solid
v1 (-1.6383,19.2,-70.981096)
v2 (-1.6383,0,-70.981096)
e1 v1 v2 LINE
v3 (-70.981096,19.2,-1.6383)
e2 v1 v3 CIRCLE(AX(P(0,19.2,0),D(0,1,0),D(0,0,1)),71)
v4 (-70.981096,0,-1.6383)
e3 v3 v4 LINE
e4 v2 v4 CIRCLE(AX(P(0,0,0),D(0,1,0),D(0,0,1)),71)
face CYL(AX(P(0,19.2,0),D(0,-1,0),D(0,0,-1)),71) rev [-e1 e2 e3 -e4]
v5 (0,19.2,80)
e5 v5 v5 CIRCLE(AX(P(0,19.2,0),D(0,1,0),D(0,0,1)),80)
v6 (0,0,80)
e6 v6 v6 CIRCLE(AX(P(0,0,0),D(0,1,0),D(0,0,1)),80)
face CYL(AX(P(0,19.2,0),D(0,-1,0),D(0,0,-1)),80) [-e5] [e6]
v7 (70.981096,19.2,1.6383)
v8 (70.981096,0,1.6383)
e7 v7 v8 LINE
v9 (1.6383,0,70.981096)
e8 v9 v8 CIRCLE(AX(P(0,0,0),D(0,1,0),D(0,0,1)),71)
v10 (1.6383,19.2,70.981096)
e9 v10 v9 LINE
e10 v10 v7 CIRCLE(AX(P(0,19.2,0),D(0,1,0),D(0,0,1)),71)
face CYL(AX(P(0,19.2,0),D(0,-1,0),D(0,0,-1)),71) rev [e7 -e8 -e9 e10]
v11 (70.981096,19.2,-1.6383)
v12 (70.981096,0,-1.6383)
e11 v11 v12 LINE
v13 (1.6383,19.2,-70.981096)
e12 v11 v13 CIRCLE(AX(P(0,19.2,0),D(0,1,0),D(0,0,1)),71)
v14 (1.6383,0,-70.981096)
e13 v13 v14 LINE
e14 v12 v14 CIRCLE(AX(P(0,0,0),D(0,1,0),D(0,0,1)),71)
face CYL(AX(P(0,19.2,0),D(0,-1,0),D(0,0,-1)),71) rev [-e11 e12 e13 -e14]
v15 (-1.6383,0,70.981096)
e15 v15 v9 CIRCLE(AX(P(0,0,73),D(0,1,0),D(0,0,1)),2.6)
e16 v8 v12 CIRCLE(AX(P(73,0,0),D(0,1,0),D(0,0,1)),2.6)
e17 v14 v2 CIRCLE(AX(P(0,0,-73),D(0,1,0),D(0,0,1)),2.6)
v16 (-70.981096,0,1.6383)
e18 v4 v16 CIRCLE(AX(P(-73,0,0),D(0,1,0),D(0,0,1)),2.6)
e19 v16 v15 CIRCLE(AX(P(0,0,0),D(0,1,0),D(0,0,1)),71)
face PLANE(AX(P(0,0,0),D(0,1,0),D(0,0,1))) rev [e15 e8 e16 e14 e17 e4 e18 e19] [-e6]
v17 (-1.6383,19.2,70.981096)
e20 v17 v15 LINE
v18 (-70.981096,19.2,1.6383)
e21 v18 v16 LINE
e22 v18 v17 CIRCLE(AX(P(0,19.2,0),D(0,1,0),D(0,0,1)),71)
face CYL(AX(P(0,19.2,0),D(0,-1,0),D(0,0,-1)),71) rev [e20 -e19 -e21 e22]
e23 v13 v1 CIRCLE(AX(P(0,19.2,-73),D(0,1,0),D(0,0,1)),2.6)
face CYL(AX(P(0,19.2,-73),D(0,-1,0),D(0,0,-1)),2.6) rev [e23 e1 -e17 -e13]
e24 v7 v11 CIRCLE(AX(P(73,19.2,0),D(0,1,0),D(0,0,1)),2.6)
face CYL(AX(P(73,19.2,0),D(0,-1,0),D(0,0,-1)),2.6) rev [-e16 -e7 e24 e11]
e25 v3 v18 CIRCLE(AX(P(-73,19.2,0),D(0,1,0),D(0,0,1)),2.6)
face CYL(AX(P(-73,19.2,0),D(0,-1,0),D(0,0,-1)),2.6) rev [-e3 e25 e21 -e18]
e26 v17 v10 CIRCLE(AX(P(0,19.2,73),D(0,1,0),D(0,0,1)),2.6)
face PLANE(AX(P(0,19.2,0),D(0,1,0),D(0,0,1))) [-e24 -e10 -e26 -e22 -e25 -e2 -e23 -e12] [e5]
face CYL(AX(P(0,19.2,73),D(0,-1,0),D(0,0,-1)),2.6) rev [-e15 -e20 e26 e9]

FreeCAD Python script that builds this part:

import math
import FreeCAD as App
import Part
import Sketcher

V = App.Vector
Q = App.Units.Quantity

doc = App.newDocument("Part")
params = doc.addObject("Spreadsheet::Sheet", "Params")
for row, (alias, value) in enumerate([
    ("sketch1_diameter", "160 mm"),
    ("sketch1_radius", "71 mm"),
    ("sketch1_radius2", "2.6 mm"),
    ("pad1_length", "19.2 mm"),
], start=1):
    params.set(f"A{row}", alias)
    params.set(f"B{row}", "=" + value)
    params.setAlias(f"B{row}", alias)

body = doc.addObject("PartDesign::Body", "Body")

# Sketch on XZ plane
sketch1 = doc.addObject("Sketcher::SketchObject", "Sketch")
body.addObject(sketch1)
sketch1.AttachmentSupport = (doc.XZ_Plane, [""])
sketch1.MapMode = "FlatFace"
sketch1.addGeometry([
    Part.Circle(V(0, 0, 0), V(0, 0, 1), 80),  # 0
    Part.ArcOfCircle(Part.Circle(V(0, -73, 0), V(0, 0, 1), 2.6), math.radians(129), math.radians(411)),  # 1
    Part.ArcOfCircle(Part.Circle(V(0, 0, 0), V(0, 0, 1), 71), math.radians(-89), math.radians(-1)),  # 2
    Part.ArcOfCircle(Part.Circle(V(73, 0, 0), V(0, 0, 1), 2.6), math.radians(-141), math.radians(141)),  # 3
    Part.ArcOfCircle(Part.Circle(V(0, 0, 0), V(0, 0, 1), 71), math.radians(1), math.radians(89)),  # 4
    Part.ArcOfCircle(Part.Circle(V(0, 73, 0), V(0, 0, 1), 2.6), math.radians(-51), math.radians(231)),  # 5
    Part.ArcOfCircle(Part.Circle(V(0, 0, 0), V(0, 0, 1), 71), math.radians(91), math.radians(179)),  # 6
    Part.ArcOfCircle(Part.Circle(V(-73, 0, 0), V(0, 0, 1), 2.6), math.radians(39), math.radians(321)),  # 7
    Part.ArcOfCircle(Part.Circle(V(0, 0, 0), V(0, 0, 1), 71), math.radians(-179), math.radians(-91)),  # 8
], False)
sketch1.addConstraint([
    Sketcher.Constraint("Coincident", 1, 2, 2, 1),
    Sketcher.Constraint("Coincident", 2, 2, 3, 1),
    Sketcher.Constraint("Coincident", 3, 2, 4, 1),
    Sketcher.Constraint("Coincident", 4, 2, 5, 1),
    Sketcher.Constraint("Coincident", 5, 2, 6, 1),
    Sketcher.Constraint("Coincident", 6, 2, 7, 1),
    Sketcher.Constraint("Coincident", 7, 2, 8, 1),
    Sketcher.Constraint("Coincident", 8, 2, 1, 1),
    Sketcher.Constraint("Coincident", 0, 3, -1, 1),
    Sketcher.Constraint("Coincident", 2, 3, -1, 1),
    Sketcher.Constraint("Coincident", 4, 3, -1, 1),
    Sketcher.Constraint("Coincident", 6, 3, -1, 1),
    Sketcher.Constraint("Coincident", 8, 3, -1, 1),
    Sketcher.Constraint("Equal", 1, 3),
    Sketcher.Constraint("Equal", 2, 4),
    Sketcher.Constraint("Equal", 3, 5),
    Sketcher.Constraint("Equal", 4, 6),
    Sketcher.Constraint("Equal", 5, 7),
    Sketcher.Constraint("Equal", 6, 8),
    Sketcher.Constraint("Symmetric", 1, 3, 5, 3, -1, 1),
    Sketcher.Constraint("Symmetric", 3, 3, 7, 3, -1, 1),
    Sketcher.Constraint("PointOnObject", 1, 3, -2),
    Sketcher.Constraint("PointOnObject", 3, 3, -1),
    Sketcher.Constraint("Diameter", 0, Q("160 mm")),
    Sketcher.Constraint("Radius", 2, Q("71 mm")),
    Sketcher.Constraint("Radius", 1, Q("2.6 mm")),
    Sketcher.Constraint("DistanceY", 1, 3, -1, 1, Q("73 mm")),
    Sketcher.Constraint("DistanceX", -1, 1, 3, 3, Q("73 mm")),
])
sketch1.setExpression("Constraints[23]", "Params.sketch1_diameter")
sketch1.setExpression("Constraints[24]", "Params.sketch1_radius")
sketch1.setExpression("Constraints[25]", "Params.sketch1_radius2")
pad1 = doc.addObject("PartDesign::Pad", "Pad")
body.addObject(pad1)
pad1.Profile = sketch1
pad1.setExpression("Length", "Params.pad1_length")
pad1.Reversed = True

doc.recompute()
